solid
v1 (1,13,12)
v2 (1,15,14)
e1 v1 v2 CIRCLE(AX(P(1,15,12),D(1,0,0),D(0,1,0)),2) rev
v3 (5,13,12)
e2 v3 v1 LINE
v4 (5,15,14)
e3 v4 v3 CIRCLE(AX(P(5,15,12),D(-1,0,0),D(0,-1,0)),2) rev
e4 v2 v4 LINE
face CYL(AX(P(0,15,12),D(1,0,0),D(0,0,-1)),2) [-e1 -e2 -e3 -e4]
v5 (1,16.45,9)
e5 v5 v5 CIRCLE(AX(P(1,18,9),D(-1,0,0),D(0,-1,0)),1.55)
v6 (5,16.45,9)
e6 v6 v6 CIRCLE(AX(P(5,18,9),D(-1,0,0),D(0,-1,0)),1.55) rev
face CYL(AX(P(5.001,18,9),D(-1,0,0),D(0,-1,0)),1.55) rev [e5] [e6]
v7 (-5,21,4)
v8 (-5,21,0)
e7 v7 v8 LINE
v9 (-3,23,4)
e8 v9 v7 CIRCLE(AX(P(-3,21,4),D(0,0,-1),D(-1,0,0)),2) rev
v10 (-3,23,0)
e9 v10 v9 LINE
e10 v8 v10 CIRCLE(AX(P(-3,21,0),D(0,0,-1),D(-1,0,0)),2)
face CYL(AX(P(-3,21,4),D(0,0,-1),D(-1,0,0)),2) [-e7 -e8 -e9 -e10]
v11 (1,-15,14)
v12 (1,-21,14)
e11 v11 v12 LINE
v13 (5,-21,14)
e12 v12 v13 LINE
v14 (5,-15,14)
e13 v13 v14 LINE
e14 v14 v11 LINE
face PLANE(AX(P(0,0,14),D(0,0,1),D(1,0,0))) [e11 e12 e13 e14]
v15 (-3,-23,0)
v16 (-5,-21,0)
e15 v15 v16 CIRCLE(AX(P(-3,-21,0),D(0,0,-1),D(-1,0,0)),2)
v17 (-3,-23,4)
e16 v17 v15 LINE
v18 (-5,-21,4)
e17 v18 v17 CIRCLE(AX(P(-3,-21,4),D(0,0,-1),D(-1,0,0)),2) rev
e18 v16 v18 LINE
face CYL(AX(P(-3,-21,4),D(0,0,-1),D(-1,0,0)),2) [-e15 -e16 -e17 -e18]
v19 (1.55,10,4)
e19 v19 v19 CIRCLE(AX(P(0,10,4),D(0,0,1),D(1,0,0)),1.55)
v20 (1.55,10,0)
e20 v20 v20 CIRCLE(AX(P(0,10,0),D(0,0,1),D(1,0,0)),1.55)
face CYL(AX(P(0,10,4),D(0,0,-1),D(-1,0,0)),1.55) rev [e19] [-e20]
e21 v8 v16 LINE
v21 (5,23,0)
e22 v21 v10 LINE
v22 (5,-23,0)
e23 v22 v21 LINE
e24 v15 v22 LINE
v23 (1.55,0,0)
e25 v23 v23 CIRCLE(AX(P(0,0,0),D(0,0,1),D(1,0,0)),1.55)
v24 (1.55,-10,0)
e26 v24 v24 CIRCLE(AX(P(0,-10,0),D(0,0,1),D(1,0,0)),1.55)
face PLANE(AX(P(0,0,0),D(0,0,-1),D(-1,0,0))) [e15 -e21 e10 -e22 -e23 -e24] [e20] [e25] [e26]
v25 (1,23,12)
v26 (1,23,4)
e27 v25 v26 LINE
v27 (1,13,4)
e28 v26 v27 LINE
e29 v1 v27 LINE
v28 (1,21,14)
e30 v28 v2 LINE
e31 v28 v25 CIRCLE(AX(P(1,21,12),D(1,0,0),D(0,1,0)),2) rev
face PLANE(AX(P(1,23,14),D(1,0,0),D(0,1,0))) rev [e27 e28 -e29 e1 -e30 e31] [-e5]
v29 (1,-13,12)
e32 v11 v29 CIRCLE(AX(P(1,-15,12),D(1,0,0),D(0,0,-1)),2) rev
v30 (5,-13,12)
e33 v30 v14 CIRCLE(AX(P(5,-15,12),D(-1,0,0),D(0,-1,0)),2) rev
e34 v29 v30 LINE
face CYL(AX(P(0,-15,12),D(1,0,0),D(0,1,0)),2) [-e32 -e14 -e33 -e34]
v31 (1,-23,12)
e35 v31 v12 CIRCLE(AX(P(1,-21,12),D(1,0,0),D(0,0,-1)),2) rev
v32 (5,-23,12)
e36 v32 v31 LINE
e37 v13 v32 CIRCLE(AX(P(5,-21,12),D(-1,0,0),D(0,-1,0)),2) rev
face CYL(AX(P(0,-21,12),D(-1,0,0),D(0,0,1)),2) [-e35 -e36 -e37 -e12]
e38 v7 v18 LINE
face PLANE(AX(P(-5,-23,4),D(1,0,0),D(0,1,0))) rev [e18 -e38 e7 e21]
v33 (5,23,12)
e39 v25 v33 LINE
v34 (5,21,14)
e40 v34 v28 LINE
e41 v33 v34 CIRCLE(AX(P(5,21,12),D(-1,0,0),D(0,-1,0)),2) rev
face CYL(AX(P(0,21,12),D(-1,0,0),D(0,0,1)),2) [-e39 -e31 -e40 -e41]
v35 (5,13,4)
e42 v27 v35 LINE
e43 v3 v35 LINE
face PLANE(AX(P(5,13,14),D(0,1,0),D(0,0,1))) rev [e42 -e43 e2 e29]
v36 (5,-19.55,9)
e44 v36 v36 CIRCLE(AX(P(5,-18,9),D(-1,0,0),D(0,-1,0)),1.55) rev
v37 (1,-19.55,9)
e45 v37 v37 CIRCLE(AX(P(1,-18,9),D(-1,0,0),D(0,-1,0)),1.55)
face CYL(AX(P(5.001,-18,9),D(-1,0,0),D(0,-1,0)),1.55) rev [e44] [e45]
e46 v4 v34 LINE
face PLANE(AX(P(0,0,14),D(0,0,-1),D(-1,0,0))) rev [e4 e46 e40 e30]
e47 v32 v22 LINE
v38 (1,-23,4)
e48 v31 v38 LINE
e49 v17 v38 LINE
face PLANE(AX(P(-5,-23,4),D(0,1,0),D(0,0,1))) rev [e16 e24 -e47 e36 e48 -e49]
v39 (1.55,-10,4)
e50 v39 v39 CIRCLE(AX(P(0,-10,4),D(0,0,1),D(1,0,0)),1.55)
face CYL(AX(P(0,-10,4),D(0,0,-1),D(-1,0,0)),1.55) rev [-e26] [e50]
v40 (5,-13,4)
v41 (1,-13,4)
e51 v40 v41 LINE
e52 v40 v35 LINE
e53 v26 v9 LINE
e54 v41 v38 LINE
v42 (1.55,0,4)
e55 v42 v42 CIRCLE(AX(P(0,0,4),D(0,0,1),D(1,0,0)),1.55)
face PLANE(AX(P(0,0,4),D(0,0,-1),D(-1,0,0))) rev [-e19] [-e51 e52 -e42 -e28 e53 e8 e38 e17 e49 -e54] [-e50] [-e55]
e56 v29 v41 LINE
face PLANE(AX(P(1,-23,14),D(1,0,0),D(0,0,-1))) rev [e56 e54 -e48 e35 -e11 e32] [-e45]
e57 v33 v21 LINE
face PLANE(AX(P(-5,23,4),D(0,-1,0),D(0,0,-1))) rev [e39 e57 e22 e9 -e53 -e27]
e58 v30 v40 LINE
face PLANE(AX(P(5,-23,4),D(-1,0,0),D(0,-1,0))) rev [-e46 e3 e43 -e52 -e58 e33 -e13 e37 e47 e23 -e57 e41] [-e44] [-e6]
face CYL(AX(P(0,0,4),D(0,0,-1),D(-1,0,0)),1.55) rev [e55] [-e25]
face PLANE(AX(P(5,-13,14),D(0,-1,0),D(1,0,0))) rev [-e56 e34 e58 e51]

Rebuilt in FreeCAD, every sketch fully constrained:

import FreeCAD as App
import Part
import Sketcher
from FreeCAD import Vector


def edges_at(feature, points):
    """Names of the edges that pass closest to the given points."""
    edges = feature.Shape.Edges
    near = lambda p: min(range(len(edges)), key=lambda i: edges[i].distToShape(Part.Vertex(*p))[0])
    return sorted({f"Edge{near(p) + 1}" for p in points})

doc = App.newDocument("Part")
body = doc.addObject("PartDesign::Body", "Body")

sketch1 = body.newObject("Sketcher::SketchObject", "Sketch")
sketch1.AttachmentSupport = (doc.getObject("XY_Plane"), [""])
sketch1.MapMode = "FlatFace"
sketch1.addGeometry([
    Part.LineSegment(Vector(-5, 23, 0), Vector(-5, -23, 0)),
    Part.LineSegment(Vector(-5, -23, 0), Vector(5, -23, 0)),
    Part.LineSegment(Vector(5, -23, 0), Vector(5, 23, 0)),
    Part.LineSegment(Vector(5, 23, 0), Vector(-5, 23, 0)),
    Part.Circle(Vector(0, -10, 0), Vector(0, 0, 1), 1.6),
    Part.Circle(Vector(0, 0, 0), Vector(0, 0, 1), 1.6),
    Part.Circle(Vector(0, 10, 0), Vector(0, 0, 1), 1.6),
], False)
sketch1.addConstraint([
    Sketcher.Constraint("Coincident", 0, 2, 1, 1),
    Sketcher.Constraint("Coincident", 1, 2, 2, 1),
    Sketcher.Constraint("Coincident", 2, 2, 3, 1),
    Sketcher.Constraint("Coincident", 3, 2, 0, 1),
    Sketcher.Constraint("Vertical", 0),
    Sketcher.Constraint("Horizontal", 1),
    Sketcher.Constraint("Vertical", 2),
    Sketcher.Constraint("Horizontal", 3),
    Sketcher.Constraint("Coincident", 5, 3, -1, 1),
    Sketcher.Constraint("Equal", 4, 5),
    Sketcher.Constraint("Equal", 5, 6),
    Sketcher.Constraint("Symmetric", 4, 3, 6, 3, -1, 1),
    Sketcher.Constraint("Symmetric", 0, 2, 2, 2, -1, 1),
    Sketcher.Constraint("PointOnObject", 4, 3, -2),
    Sketcher.Constraint("Diameter", 4, 3.1),
    Sketcher.Constraint("DistanceX", 1, 1, 1, 2, 10.0),
    Sketcher.Constraint("DistanceY", 0, 2, 0, 1, 46.0),
    Sketcher.Constraint("DistanceY", 4, 3, -1, 1, 10.0),
])
pad1 = body.newObject("PartDesign::Pad", "Pad")
pad1.Profile = sketch1
pad1.Length = 4

sketch2 = body.newObject("Sketcher::SketchObject", "Sketch001")
sketch2.AttachmentSupport = (doc.getObject("XY_Plane"), [""])
sketch2.MapMode = "FlatFace"
sketch2.AttachmentOffset = App.Placement(Vector(0, 0, 4), App.Rotation())
sketch2.addGeometry([
    Part.LineSegment(Vector(1, 23, 0), Vector(1, 13, 0)),
    Part.LineSegment(Vector(1, 13, 0), Vector(5, 13, 0)),
    Part.LineSegment(Vector(5, 13, 0), Vector(5, 23, 0)),
    Part.LineSegment(Vector(5, 23, 0), Vector(1, 23, 0)),
    Part.LineSegment(Vector(1, -13, 0), Vector(1, -23, 0)),
    Part.LineSegment(Vector(1, -23, 0), Vector(5, -23, 0)),
    Part.LineSegment(Vector(5, -23, 0), Vector(5, -13, 0)),
    Part.LineSegment(Vector(5, -13, 0), Vector(1, -13, 0)),
], False)
sketch2.addConstraint([
    Sketcher.Constraint("Coincident", 0, 2, 1, 1),
    Sketcher.Constraint("Coincident", 1, 2, 2, 1),
    Sketcher.Constraint("Coincident", 2, 2, 3, 1),
    Sketcher.Constraint("Coincident", 3, 2, 0, 1),
    Sketcher.Constraint("Coincident", 4, 2, 5, 1),
    Sketcher.Constraint("Coincident", 5, 2, 6, 1),
    Sketcher.Constraint("Coincident", 6, 2, 7, 1),
    Sketcher.Constraint("Coincident", 7, 2, 4, 1),
    Sketcher.Constraint("Vertical", 0),
    Sketcher.Constraint("Horizontal", 1),
    Sketcher.Constraint("Vertical", 2),
    Sketcher.Constraint("Horizontal", 3),
    Sketcher.Constraint("Vertical", 4),
    Sketcher.Constraint("Horizontal", 5),
    Sketcher.Constraint("Vertical", 6),
    Sketcher.Constraint("Horizontal", 7),
    Sketcher.Constraint("Symmetric", 3, 2, 4, 2, -1),
    Sketcher.Constraint("Symmetric", 1, 2, 6, 2, -1),
    Sketcher.Constraint("DistanceX", 1, 1, 1, 2, 4.0),
    Sketcher.Constraint("DistanceY", 0, 2, 0, 1, 10.0),
    Sketcher.Constraint("DistanceX", -1, 1, 0, 2, 1.0),
    Sketcher.Constraint("DistanceY", -1, 1, 0, 2, 13.0),
])
pad2 = body.newObject("PartDesign::Pad", "Pad001")
pad2.Profile = sketch2
pad2.Length = 10

sketch3 = body.newObject("Sketcher::SketchObject", "Sketch002")
sketch3.AttachmentSupport = (doc.getObject("YZ_Plane"), [""])
sketch3.MapMode = "FlatFace"
sketch3.AttachmentOffset = App.Placement(Vector(0, 0, 1), App.Rotation())
sketch3.addGeometry(Part.Circle(Vector(18, 9, 0), Vector(0, 0, 1), 1.6), False)
sketch3.addConstraint([
    Sketcher.Constraint("Diameter", 0, 3.1),
    Sketcher.Constraint("DistanceX", -1, 1, 0, 3, 18.0),
    Sketcher.Constraint("DistanceY", -1, 1, 0, 3, 9.0),
])
pocket1 = body.newObject("PartDesign::Pocket", "Pocket")
pocket1.Profile = sketch3
pocket1.Type = "UpToFirst"
pocket1.Reversed = True

sketch4 = body.newObject("Sketcher::SketchObject", "Sketch003")
sketch4.AttachmentSupport = (doc.getObject("YZ_Plane"), [""])
sketch4.MapMode = "FlatFace"
sketch4.AttachmentOffset = App.Placement(Vector(0, 0, 1), App.Rotation())
sketch4.addGeometry(Part.Circle(Vector(-18, 9, 0), Vector(0, 0, 1), 1.6), False)
sketch4.addConstraint([
    Sketcher.Constraint("Diameter", 0, 3.1),
    Sketcher.Constraint("DistanceX", 0, 3, -1, 1, 18.0),
    Sketcher.Constraint("DistanceY", -1, 1, 0, 3, 9.0),
])
pocket2 = body.newObject("PartDesign::Pocket", "Pocket001")
pocket2.Profile = sketch4
pocket2.Type = "UpToFirst"
pocket2.Reversed = True
doc.recompute()

fillet = body.newObject("PartDesign::Fillet", "Fillet")
fillet.Base = (pocket2, edges_at(pocket2, [
    (3, 23, 14),
    (3, 13, 14),
    (3, -13, 14),
    (3, -23, 14),
    (-5, -23, 2),
    (-5, 23, 2),
]))
fillet.Radius = 2

doc.recompute()
